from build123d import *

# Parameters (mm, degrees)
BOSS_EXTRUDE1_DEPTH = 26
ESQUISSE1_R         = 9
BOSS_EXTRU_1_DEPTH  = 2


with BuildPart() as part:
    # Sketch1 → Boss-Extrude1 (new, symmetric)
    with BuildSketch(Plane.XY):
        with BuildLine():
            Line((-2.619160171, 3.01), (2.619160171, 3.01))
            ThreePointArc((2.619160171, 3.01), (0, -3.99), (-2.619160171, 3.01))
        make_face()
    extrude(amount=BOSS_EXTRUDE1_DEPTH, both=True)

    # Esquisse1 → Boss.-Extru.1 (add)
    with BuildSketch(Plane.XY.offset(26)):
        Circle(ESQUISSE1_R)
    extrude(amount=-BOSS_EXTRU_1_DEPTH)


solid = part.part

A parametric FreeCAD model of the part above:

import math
import FreeCAD as App
import Part
import Sketcher
Q = App.Units.Quantity

doc = App.newDocument("Part")
body = doc.addObject("PartDesign::Body", "Body")

# Sketch on XY plane
sketch1 = doc.addObject("Sketcher::SketchObject", "Sketch")
body.addObject(sketch1)
sketch1.AttachmentSupport = (doc.XY_Plane, [""])
sketch1.MapMode = "FlatFace"
sketch1.addGeometry([
    Part.LineSegment(App.Vector(2.61916, 3.01, 0), App.Vector(-2.61916, 3.01, 0)),
    Part.ArcOfCircle(Part.Circle(App.Vector(0, 0, 0), App.Vector(0, 0, 1), 3.99), math.radians(131.028254), math.radians(408.971746)),
], False)
sketch1.addConstraint([
    Sketcher.Constraint("Coincident", 0, 1, 1, 2),
    Sketcher.Constraint("Coincident", 1, 1, 0, 2),
    Sketcher.Constraint("Horizontal", 0),
    Sketcher.Constraint("Coincident", 1, 3, -1, 1),
    Sketcher.Constraint("Radius", 1, Q("3.99 mm")),
    Sketcher.Constraint("DistanceY", -1, 1, 0, 1, Q("3.01 mm")),
])
pad1 = doc.addObject("PartDesign::Pad", "Pad")
body.addObject(pad1)
pad1.Profile = sketch1
pad1.Length = 52
pad1.Midplane = True

# Sketch on XY plane
sketch2 = doc.addObject("Sketcher::SketchObject", "Sketch001")
body.addObject(sketch2)
sketch2.AttachmentSupport = (doc.XY_Plane, [""])
sketch2.MapMode = "FlatFace"
sketch2.AttachmentOffset = App.Placement(App.Vector(0, 0, 26), App.Rotation())
sketch2.addGeometry(Part.Circle(App.Vector(0, 0, 0), App.Vector(0, 0, 1), 9), False)
sketch2.addConstraint([
    Sketcher.Constraint("Coincident", 0, 3, -1, 1),
    Sketcher.Constraint("Diameter", 0, Q("18 mm")),
])
pad2 = doc.addObject("PartDesign::Pad", "Pad001")
body.addObject(pad2)
pad2.Profile = sketch2
pad2.Length = 2
pad2.Reversed = True

doc.recompute()
